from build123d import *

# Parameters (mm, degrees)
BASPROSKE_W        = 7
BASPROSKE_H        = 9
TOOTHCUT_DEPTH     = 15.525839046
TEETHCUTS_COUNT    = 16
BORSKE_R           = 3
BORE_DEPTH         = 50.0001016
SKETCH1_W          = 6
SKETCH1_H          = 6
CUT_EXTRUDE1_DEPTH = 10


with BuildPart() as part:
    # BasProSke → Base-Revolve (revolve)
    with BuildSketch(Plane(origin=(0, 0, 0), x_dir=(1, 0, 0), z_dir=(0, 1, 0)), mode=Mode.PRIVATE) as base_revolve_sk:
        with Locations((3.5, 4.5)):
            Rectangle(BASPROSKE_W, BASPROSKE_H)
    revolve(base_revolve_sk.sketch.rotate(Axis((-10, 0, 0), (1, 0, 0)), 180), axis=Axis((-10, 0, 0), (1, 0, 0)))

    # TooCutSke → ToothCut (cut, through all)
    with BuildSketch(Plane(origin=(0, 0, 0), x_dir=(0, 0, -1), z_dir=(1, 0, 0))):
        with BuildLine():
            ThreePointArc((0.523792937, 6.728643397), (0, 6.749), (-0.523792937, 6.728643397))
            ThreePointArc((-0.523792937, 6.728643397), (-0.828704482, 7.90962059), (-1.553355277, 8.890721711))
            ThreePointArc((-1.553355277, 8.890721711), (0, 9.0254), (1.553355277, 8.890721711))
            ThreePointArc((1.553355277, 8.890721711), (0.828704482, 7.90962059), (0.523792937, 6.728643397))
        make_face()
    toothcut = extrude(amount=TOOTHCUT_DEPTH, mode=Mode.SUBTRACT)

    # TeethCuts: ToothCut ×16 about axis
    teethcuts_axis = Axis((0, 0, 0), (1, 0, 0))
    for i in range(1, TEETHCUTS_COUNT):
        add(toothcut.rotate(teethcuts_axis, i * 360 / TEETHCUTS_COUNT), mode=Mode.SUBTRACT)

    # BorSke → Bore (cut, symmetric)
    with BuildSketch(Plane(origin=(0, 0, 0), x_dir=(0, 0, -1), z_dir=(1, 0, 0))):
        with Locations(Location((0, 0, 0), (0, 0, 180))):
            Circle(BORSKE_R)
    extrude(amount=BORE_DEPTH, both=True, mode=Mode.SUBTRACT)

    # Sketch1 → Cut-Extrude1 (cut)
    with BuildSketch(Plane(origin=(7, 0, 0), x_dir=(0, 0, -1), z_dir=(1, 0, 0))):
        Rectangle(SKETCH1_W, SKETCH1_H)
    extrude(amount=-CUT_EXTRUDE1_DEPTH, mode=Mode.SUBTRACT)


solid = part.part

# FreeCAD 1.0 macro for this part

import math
import FreeCAD as App
import Part
import Sketcher


def add_polygon(sketch, points):
    """Adds a closed chain of lines whose ends are joined by coincident constraints."""
    first, n = sketch.GeometryCount, len(points)
    for a, b in zip(points, points[1:] + points[:1]):
        sketch.addGeometry(Part.LineSegment(App.Vector(*a, 0), App.Vector(*b, 0)), False)
    for i in range(n):
        sketch.addConstraint(Sketcher.Constraint("Coincident", first + i, 2, first + (i + 1) % n, 1))

doc = App.newDocument("Part")
body = doc.addObject("PartDesign::Body", "Body")

# Sketch on XZ plane
sketch1 = body.newObject("Sketcher::SketchObject", "Sketch")
sketch1.AttachmentSupport = (doc.getObject("XZ_Plane"), [""])
sketch1.MapMode = "FlatFace"
add_polygon(sketch1, [(0, -9), (0, 0), (7, 0), (7, -9)])  # lines 0-3
sketch1.addConstraint([
    Sketcher.Constraint("Vertical", 0),
    Sketcher.Constraint("Horizontal", 1),
    Sketcher.Constraint("Vertical", 2),
    Sketcher.Constraint("Horizontal", 3),
    Sketcher.Constraint("Coincident", 0, 2, -1, 1),
    Sketcher.Constraint("DistanceX", 1, 1, 1, 2, 7.0),
    Sketcher.Constraint("DistanceY", 0, 1, 0, 2, 9.0),
])
revolution = body.newObject("PartDesign::Revolution", "Revolution")
revolution.Profile = sketch1
revolution.ReferenceAxis = (sketch1, ["H_Axis"])
revolution.Angle = 360

# Sketch on YZ plane
sketch2 = body.newObject("Sketcher::SketchObject", "Sketch001")
sketch2.AttachmentSupport = (doc.getObject("YZ_Plane"), [""])
sketch2.MapMode = "FlatFace"
sketch2.addGeometry([
    Part.ArcOfCircle(Part.Circle(App.Vector(0, 0, 0), App.Vector(0, 0, 1), 6.749), math.radians(-4.451227), math.radians(4.451227)),
    Part.ArcOfCircle(Part.Circle(App.Vector(6.533832, -3.717857, 0), App.Vector(0, 0, 1), 3.2), math.radians(42.563503), math.radians(86.509753)),
    Part.ArcOfCircle(Part.Circle(App.Vector(0, 0, 0), App.Vector(0, 0, 1), 9.0254), math.radians(-9.910481), math.radians(9.910481)),
    Part.ArcOfCircle(Part.Circle(App.Vector(6.533832, 3.717857, 0), App.Vector(0, 0, 1), 3.2), math.radians(-86.509753), math.radians(-42.563503)),
], False)
sketch2.addConstraint([
    Sketcher.Constraint("Coincident", 0, 1, 1, 2),
    Sketcher.Constraint("Coincident", 1, 1, 2, 1),
    Sketcher.Constraint("Coincident", 2, 2, 3, 2),
    Sketcher.Constraint("Coincident", 3, 1, 0, 2),
    Sketcher.Constraint("Coincident", 0, 3, -1, 1),
    Sketcher.Constraint("Coincident", 2, 3, -1, 1),
    Sketcher.Constraint("Equal", 1, 3),
    Sketcher.Constraint("Symmetric", 1, 3, 3, 3, -1),
    Sketcher.Constraint("Radius", 1, 3.2),
    Sketcher.Constraint("Radius", 0, 6.749),
    Sketcher.Constraint("Radius", 2, 9.0254),
    Sketcher.Constraint("DistanceX", -1, 1, 1, 3, 6.533832),
    Sketcher.Constraint("DistanceX", -1, 1, 1, 1, 8.890722),
])
pocket1 = body.newObject("PartDesign::Pocket", "Pocket")
pocket1.Profile = sketch2
pocket1.Type = "ThroughAll"
pocket1.Reversed = True
doc.recompute()

polarpattern = body.newObject("PartDesign::PolarPattern", "PolarPattern")
polarpattern.Originals = [pocket1]
polarpattern.Axis = (doc.getObject("X_Axis"), [""])
polarpattern.Angle = 360
polarpattern.Occurrences = 16
body.Tip = polarpattern

# Sketch on YZ plane
sketch3 = body.newObject("Sketcher::SketchObject", "Sketch002")
sketch3.AttachmentSupport = (doc.getObject("YZ_Plane"), [""])
sketch3.MapMode = "FlatFace"
sketch3.addGeometry(Part.Circle(App.Vector(0, 0, 0), App.Vector(0, 0, 1), 3), False)
sketch3.addConstraint([
    Sketcher.Constraint("Coincident", 0, 3, -1, 1),
    Sketcher.Constraint("Diameter", 0, 6.0),
])
pocket2 = body.newObject("PartDesign::Pocket", "Pocket001")
pocket2.Profile = sketch3
pocket2.Length = 100.000203
pocket2.Midplane = True

# Sketch on YZ plane
sketch4 = body.newObject("Sketcher::SketchObject", "Sketch003")
sketch4.AttachmentSupport = (doc.getObject("YZ_Plane"), [""])
sketch4.MapMode = "FlatFace"
sketch4.AttachmentOffset = App.Placement(App.Vector(0, 0, 7), App.Rotation())
add_polygon(sketch4, [(3, 3), (-3, 3), (-3, -3), (3, -3)])  # lines 0-3
sketch4.addConstraint([
    Sketcher.Constraint("Horizontal", 0),
    Sketcher.Constraint("Vertical", 1),
    Sketcher.Constraint("Horizontal", 2),
    Sketcher.Constraint("Vertical", 3),
    Sketcher.Constraint("Symmetric", 0, 2, 2, 2, -1, 1),
    Sketcher.Constraint("Equal", 2, 1),
    Sketcher.Constraint("DistanceX", 0, 2, 0, 1, 6.0),
])
pocket3 = body.newObject("PartDesign::Pocket", "Pocket002")
pocket3.Profile = sketch4
pocket3.Length = 10

doc.recompute()
